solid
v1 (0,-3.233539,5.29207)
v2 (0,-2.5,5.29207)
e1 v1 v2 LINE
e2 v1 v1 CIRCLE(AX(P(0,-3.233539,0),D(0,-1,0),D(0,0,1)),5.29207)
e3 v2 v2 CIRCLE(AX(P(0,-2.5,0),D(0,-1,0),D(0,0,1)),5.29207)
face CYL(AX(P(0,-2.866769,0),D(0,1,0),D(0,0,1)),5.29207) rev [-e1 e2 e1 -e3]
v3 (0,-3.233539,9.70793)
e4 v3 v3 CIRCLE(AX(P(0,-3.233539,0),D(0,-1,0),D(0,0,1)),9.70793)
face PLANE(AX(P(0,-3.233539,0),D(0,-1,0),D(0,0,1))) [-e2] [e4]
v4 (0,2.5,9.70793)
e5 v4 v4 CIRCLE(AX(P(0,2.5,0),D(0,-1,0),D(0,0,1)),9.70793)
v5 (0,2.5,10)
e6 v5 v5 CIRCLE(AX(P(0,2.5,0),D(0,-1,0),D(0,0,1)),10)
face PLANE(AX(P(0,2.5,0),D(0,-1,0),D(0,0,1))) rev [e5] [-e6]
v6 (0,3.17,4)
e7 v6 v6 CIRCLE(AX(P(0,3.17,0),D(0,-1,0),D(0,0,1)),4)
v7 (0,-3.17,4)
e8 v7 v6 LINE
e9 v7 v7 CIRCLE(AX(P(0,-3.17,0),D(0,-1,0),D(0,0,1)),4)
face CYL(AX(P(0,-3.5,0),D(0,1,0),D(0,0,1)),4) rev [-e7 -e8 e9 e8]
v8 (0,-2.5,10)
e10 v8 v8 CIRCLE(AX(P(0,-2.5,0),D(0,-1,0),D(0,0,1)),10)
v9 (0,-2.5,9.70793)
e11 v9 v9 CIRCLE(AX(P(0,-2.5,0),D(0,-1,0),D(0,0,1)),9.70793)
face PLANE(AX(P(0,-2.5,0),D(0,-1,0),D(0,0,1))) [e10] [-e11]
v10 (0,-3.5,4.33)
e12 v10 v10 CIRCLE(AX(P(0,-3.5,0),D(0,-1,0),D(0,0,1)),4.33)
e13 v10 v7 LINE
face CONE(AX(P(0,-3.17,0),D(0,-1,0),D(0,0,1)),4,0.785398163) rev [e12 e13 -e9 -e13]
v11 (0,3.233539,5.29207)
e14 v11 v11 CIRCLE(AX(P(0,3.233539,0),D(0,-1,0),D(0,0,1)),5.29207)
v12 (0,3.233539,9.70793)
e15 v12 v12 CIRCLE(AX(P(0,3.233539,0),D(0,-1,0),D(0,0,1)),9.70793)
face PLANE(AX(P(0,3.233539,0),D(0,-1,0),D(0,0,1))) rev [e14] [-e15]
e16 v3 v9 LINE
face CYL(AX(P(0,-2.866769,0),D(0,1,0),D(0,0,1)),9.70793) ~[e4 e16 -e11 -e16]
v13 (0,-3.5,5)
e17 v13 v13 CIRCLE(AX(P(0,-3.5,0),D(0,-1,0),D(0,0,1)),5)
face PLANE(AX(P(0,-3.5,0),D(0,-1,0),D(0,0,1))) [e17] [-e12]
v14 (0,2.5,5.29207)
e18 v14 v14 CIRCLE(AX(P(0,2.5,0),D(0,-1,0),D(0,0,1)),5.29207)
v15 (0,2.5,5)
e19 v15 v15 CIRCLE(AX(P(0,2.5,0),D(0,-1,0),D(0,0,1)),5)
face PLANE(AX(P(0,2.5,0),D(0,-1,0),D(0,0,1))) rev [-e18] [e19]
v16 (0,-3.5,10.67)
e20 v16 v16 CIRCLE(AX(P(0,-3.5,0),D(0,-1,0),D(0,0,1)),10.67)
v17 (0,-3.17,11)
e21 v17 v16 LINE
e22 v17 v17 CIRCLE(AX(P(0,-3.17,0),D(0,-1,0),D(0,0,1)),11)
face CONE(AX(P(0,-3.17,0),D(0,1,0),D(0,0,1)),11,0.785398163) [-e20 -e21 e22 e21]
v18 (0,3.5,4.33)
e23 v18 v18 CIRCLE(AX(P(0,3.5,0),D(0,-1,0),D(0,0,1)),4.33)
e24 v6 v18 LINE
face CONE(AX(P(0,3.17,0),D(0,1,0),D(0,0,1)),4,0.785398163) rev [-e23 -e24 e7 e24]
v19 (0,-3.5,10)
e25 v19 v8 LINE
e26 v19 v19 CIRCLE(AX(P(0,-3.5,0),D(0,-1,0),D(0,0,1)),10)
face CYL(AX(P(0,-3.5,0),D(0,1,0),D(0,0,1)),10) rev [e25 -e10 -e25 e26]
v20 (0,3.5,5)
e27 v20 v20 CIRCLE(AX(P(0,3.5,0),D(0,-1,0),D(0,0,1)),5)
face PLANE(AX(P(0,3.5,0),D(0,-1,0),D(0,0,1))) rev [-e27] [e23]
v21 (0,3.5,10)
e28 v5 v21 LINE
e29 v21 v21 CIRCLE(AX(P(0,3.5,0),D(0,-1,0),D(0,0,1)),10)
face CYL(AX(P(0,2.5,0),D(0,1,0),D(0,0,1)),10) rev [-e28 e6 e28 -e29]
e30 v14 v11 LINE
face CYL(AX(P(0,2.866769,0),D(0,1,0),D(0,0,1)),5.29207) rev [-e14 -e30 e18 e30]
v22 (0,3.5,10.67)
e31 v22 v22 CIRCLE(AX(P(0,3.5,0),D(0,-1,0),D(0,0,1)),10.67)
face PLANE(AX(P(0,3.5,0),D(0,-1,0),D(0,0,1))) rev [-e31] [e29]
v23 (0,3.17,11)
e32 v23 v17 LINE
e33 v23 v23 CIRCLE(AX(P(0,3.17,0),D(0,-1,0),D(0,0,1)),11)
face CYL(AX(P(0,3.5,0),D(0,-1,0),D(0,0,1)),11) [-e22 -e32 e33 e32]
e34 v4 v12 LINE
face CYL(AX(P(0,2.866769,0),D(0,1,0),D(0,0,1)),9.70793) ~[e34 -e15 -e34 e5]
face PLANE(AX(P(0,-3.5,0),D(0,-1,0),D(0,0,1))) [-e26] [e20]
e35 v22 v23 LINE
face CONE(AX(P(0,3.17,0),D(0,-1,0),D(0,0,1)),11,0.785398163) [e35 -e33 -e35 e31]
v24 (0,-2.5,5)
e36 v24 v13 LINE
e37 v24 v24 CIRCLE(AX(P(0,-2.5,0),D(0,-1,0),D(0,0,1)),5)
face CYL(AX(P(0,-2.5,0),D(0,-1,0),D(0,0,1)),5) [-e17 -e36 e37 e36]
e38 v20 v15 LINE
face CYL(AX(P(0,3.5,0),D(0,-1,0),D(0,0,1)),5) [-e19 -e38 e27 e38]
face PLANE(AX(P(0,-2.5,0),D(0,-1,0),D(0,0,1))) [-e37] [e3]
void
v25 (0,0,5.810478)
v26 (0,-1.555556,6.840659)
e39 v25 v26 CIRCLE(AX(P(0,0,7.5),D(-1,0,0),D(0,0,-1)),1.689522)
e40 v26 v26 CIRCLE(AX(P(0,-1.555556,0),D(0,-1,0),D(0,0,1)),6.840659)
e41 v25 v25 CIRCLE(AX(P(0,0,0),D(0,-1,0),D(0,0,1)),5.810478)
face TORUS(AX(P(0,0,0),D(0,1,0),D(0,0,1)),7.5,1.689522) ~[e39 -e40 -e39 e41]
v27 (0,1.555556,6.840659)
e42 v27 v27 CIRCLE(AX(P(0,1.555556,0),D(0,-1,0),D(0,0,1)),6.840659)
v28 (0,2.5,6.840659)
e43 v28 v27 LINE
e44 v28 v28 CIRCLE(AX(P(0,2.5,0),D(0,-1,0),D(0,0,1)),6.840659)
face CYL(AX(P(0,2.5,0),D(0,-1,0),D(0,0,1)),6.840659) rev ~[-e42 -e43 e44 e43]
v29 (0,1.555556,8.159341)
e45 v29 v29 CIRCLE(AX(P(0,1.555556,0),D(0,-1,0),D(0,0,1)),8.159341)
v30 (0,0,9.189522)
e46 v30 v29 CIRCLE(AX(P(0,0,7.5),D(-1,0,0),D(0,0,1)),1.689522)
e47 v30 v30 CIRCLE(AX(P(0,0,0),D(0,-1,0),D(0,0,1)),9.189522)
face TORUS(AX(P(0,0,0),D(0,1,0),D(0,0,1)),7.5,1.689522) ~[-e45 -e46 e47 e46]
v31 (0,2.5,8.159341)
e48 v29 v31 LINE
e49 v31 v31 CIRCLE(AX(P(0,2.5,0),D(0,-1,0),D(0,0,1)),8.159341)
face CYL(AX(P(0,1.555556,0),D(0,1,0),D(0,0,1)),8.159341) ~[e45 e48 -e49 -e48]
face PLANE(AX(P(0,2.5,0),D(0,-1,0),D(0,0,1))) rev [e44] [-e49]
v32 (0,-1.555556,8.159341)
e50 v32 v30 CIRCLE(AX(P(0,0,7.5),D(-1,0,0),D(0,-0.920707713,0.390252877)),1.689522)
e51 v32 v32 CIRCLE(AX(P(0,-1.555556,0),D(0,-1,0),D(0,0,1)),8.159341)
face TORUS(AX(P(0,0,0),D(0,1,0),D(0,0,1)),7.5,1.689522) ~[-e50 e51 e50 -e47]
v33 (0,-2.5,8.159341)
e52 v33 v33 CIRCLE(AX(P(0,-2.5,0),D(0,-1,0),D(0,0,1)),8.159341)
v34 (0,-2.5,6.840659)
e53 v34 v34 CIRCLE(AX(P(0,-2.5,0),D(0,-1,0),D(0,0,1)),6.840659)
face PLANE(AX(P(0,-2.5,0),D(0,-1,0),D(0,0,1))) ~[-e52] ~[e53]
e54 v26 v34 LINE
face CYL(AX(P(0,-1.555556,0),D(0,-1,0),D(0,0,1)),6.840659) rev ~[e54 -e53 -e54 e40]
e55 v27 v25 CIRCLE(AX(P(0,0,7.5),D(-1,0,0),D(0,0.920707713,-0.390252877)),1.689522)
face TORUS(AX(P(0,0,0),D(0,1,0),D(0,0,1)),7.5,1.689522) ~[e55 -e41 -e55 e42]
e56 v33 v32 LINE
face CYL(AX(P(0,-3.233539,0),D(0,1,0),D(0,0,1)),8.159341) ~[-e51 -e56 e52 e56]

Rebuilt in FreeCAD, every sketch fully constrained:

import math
import FreeCAD as App
import Part
import Sketcher

V = App.Vector


def edges_at(feature, points):
    """Names of the edges that pass closest to the given points."""
    edges = feature.Shape.Edges
    near = lambda p: min(range(len(edges)), key=lambda i: edges[i].distToShape(Part.Vertex(*p))[0])
    return sorted({f"Edge{near(p) + 1}" for p in points})


def add_polygon(sketch, points):
    """Adds a closed chain of lines whose ends are joined by coincident constraints."""
    first, n = sketch.GeometryCount, len(points)
    for a, b in zip(points, points[1:] + points[:1]):
        sketch.addGeometry(Part.LineSegment(App.Vector(*a, 0), App.Vector(*b, 0)), False)
    for i in range(n):
        sketch.addConstraint(Sketcher.Constraint("Coincident", first + i, 2, first + (i + 1) % n, 1))

doc = App.newDocument("Part")
body = doc.addObject("PartDesign::Body", "Body")

# Sketch on YZ plane
sketch1 = body.newObject("Sketcher::SketchObject", "Sketch")
sketch1.AttachmentSupport = (doc.getObject("YZ_Plane"), [""])
sketch1.MapMode = "FlatFace"
add_polygon(sketch1, [(3.5, 10), (3.5, 11), (-3.5, 11), (-3.5, 10), (-2.5, 10), (-2.5, 9.70793), (-3.233539, 9.70793), (-3.233539, 5.29207), (-2.5, 5.29207), (-2.5, 5), (-3.5, 5), (-3.5, 4), (3.5, 4), (3.5, 5), (2.5, 5), (2.5, 5.29207), (3.233539, 5.29207), (3.233539, 9.70793), (2.5, 9.70793), (2.5, 10)])  # lines 0-19
sketch1.addGeometry(Part.LineSegment(V(-2.5, 8.159341, 0), V(-1.555556, 8.159341, 0)), False)  # 20
sketch1.addGeometry(Part.ArcOfCircle(Part.Circle(V(0, 7.5, 0), V(0, 0, 1), 1.689522), math.radians(90), math.radians(157.029765)), False)  # 21
sketch1.addGeometry(Part.ArcOfCircle(Part.Circle(V(0, 7.5, 0), V(0, 0, 1), 1.689522), math.radians(22.970235), math.radians(90)), False)  # 22
sketch1.addGeometry(Part.LineSegment(V(1.555556, 8.159341, 0), V(2.5, 8.159341, 0)), False)  # 23
sketch1.addGeometry(Part.LineSegment(V(2.5, 8.159341, 0), V(2.5, 6.840659, 0)), False)  # 24
sketch1.addGeometry(Part.LineSegment(V(2.5, 6.840659, 0), V(1.555556, 6.840659, 0)), False)  # 25
sketch1.addGeometry(Part.ArcOfCircle(Part.Circle(V(0, 7.5, 0), V(0, 0, 1), 1.689522), math.radians(-90), math.radians(-22.970235)), False)  # 26
sketch1.addGeometry(Part.ArcOfCircle(Part.Circle(V(0, 7.5, 0), V(0, 0, 1), 1.689522), math.radians(-157.029765), math.radians(-90)), False)  # 27
sketch1.addGeometry(Part.LineSegment(V(-1.555556, 6.840659, 0), V(-2.5, 6.840659, 0)), False)  # 28
sketch1.addGeometry(Part.LineSegment(V(-2.5, 6.840659, 0), V(-2.5, 8.159341, 0)), False)  # 29
sketch1.addConstraint([
    Sketcher.Constraint("Coincident", 20, 2, 21, 2),
    Sketcher.Constraint("Tangent", 21, 1, 22, 2),
    Sketcher.Constraint("Coincident", 22, 1, 23, 1),
    Sketcher.Constraint("Coincident", 23, 2, 24, 1),
    Sketcher.Constraint("Coincident", 24, 2, 25, 1),
    Sketcher.Constraint("Coincident", 25, 2, 26, 2),
    Sketcher.Constraint("Tangent", 26, 1, 27, 2),
    Sketcher.Constraint("Coincident", 27, 1, 28, 1),
    Sketcher.Constraint("Coincident", 28, 2, 29, 1),
    Sketcher.Constraint("Coincident", 29, 2, 20, 1),
    Sketcher.Constraint("Vertical", 0),
    Sketcher.Constraint("Horizontal", 1),
    Sketcher.Constraint("Vertical", 2),
    Sketcher.Constraint("Horizontal", 3),
    Sketcher.Constraint("Vertical", 4),
    Sketcher.Constraint("Horizontal", 5),
    Sketcher.Constraint("Vertical", 6),
    Sketcher.Constraint("Horizontal", 7),
    Sketcher.Constraint("Vertical", 8),
    Sketcher.Constraint("Horizontal", 9),
    Sketcher.Constraint("Vertical", 10),
    Sketcher.Constraint("Horizontal", 11),
    Sketcher.Constraint("Vertical", 12),
    Sketcher.Constraint("Horizontal", 13),
    Sketcher.Constraint("Vertical", 14),
    Sketcher.Constraint("Horizontal", 15),
    Sketcher.Constraint("Vertical", 16),
    Sketcher.Constraint("Horizontal", 17),
    Sketcher.Constraint("Vertical", 18),
    Sketcher.Constraint("Horizontal", 19),
    Sketcher.Constraint("Horizontal", 20),
    Sketcher.Constraint("Horizontal", 23),
    Sketcher.Constraint("Vertical", 24),
    Sketcher.Constraint("Horizontal", 25),
    Sketcher.Constraint("Horizontal", 28),
    Sketcher.Constraint("Vertical", 29),
    Sketcher.Constraint("Coincident", 26, 3, 21, 3),
    Sketcher.Constraint("Equal", 21, 22),
    Sketcher.Constraint("Equal", 22, 26),
    Sketcher.Constraint("Equal", 26, 27),
    Sketcher.Constraint("Symmetric", 9, 2, 12, 2, -2),
    Sketcher.Constraint("Symmetric", 7, 2, 14, 2, -2),
    Sketcher.Constraint("Symmetric", 5, 2, 16, 2, -2),
    Sketcher.Constraint("Symmetric", 3, 2, 18, 2, -2),
    Sketcher.Constraint("Symmetric", 20, 2, 22, 1, -2),
    Sketcher.Constraint("Symmetric", 24, 2, 28, 2, -2),
    Sketcher.Constraint("PointOnObject", 21, 1, -2),
    Sketcher.Constraint("PointOnObject", 26, 1, -2),
    Sketcher.Constraint("Vertical", 4, 2, 7, 2),
    Sketcher.Constraint("Vertical", 2, 2, 9, 2),
    Sketcher.Constraint("Vertical", 0, 2, 11, 2),
    Sketcher.Constraint("Vertical", 18, 2, 23, 2),
    Sketcher.Constraint("Vertical", 22, 1, 25, 2),
    Sketcher.Constraint("Equal", 19, 0),
    Sketcher.Constraint("Equal", 4, 8),
    Sketcher.Constraint("Equal", 2, 10),
    Sketcher.Constraint("DistanceX", 1, 2, 1, 1, 7.0),
    Sketcher.Constraint("DistanceX", 3, 1, 3, 2, 1.0),
    Sketcher.Constraint("DistanceY", -1, 1, 0, 2, 11.0),
    Sketcher.Constraint("DistanceY", -1, 1, 8, 2, 5.0),
    Sketcher.Constraint("DistanceY", -1, 1, 21, 3, 7.5),
    Sketcher.Constraint("Radius", 21, 1.689522),
    Sketcher.Constraint("DistanceX", 5, 2, 5, 1, 0.733539),
    Sketcher.Constraint("DistanceY", 4, 2, 4, 1, 0.29207),
    Sketcher.Constraint("DistanceY", 24, 2, 24, 1, 1.318681),
])
revolution = body.newObject("PartDesign::Revolution", "Revolution")
revolution.Profile = sketch1
revolution.ReferenceAxis = (sketch1, ["H_Axis"])
revolution.Angle = 360
doc.recompute()

chamfer = body.newObject("PartDesign::Chamfer", "Chamfer")
chamfer.Base = (revolution, edges_at(revolution, [
    (0, -3.5, -4),
    (0, 3.5, -4),
    (0, 0, 4),
    (0, 3.5, -11),
    (0, -3.5, -11),
    (0, 0, 11),
]))
chamfer.Size = 0.33

doc.recompute()
